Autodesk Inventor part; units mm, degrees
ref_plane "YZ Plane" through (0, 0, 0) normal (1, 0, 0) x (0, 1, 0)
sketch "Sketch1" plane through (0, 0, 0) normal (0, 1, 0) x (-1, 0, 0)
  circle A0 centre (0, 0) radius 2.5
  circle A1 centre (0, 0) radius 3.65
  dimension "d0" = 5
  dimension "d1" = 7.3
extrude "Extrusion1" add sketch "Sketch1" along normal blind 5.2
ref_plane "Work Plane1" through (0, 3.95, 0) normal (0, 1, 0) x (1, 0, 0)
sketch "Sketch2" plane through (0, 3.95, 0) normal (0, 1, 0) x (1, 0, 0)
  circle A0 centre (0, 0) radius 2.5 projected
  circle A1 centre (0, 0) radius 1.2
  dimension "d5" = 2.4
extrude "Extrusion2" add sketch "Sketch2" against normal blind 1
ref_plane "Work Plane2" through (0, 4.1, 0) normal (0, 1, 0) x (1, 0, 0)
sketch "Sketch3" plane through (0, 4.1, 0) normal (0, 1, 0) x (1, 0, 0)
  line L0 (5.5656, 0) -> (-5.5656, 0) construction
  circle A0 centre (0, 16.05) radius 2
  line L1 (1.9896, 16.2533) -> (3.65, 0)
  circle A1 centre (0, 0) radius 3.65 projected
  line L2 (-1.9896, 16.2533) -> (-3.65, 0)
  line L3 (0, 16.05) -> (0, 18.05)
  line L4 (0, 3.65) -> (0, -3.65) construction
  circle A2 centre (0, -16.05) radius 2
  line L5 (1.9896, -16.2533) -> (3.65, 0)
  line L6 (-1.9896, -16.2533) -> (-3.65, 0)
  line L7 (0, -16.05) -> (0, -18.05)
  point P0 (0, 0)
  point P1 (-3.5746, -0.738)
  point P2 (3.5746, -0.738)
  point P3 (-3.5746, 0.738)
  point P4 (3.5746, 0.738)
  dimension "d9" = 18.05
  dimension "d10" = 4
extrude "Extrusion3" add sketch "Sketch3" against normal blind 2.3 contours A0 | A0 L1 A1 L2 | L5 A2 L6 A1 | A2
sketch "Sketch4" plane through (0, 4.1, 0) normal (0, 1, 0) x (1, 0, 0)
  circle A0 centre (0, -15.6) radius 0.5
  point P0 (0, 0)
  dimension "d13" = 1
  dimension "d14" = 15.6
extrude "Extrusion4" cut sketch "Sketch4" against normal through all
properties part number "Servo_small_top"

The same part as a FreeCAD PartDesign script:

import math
import FreeCAD as App
import Part
import Sketcher

doc = App.newDocument("Part")
params = doc.addObject("Spreadsheet::Sheet", "Params")
for row, (alias, value) in enumerate([
    ("sketch1_diameter", "5 mm"),
    ("sketch1_diameter2", "7.3 mm"),
    ("pad1_length", "5.2 mm"),
    ("sketch2_diameter", "2.4 mm"),
    ("sketch2_diameter2", "5 mm"),
    ("pad2_length", "1 mm"),
    ("sketch3_radius", "2 mm"),
    ("sketch3_radius2", "3.65 mm"),
    ("pad3_length", "2.3 mm"),
    ("sketch4_diameter", "1 mm"),
], start=1):
    params.set(f"A{row}", alias)
    params.set(f"B{row}", "=" + value)
    params.setAlias(f"B{row}", alias)

body = doc.addObject("PartDesign::Body", "Body")

sketch1 = doc.addObject("Sketcher::SketchObject", "Sketch")
body.addObject(sketch1)
sketch1.AttachmentSupport = (doc.XZ_Plane, [""])
sketch1.MapMode = "FlatFace"
sketch1.addGeometry([
    Part.Circle(App.Vector(0, 0, 0), App.Vector(0, 0, 1), 3.6),
    Part.Circle(App.Vector(0, 0, 0), App.Vector(0, 0, 1), 2.5),
], False)
sketch1.addConstraint([
    Sketcher.Constraint("Coincident", 0, 3, -1, 1),
    Sketcher.Constraint("Coincident", 1, 3, -1, 1),
    Sketcher.Constraint("Diameter", 1, 5.0),
    Sketcher.Constraint("Diameter", 0, 7.3),
])
sketch1.setExpression("Constraints[2]", "Params.sketch1_diameter")
sketch1.setExpression("Constraints[3]", "Params.sketch1_diameter2")
pad1 = doc.addObject("PartDesign::Pad", "Pad")
body.addObject(pad1)
pad1.Profile = sketch1
pad1.setExpression("Length", "Params.pad1_length")
pad1.Reversed = True

sketch2 = doc.addObject("Sketcher::SketchObject", "Sketch001")
body.addObject(sketch2)
sketch2.AttachmentSupport = (doc.XZ_Plane, [""])
sketch2.MapMode = "FlatFace"
sketch2.AttachmentOffset = App.Placement(App.Vector(0, 0, -3.95), App.Rotation())
sketch2.addGeometry([
    Part.Circle(App.Vector(0, 0, 0), App.Vector(0, 0, 1), 2.5),
    Part.Circle(App.Vector(0, 0, 0), App.Vector(0, 0, 1), 1.2),
], False)
sketch2.addConstraint([
    Sketcher.Constraint("Coincident", 0, 3, -1, 1),
    Sketcher.Constraint("Coincident", 1, 3, -1, 1),
    Sketcher.Constraint("Diameter", 1, 2.4),
    Sketcher.Constraint("Diameter", 0, 5.0),
])
sketch2.setExpression("Constraints[2]", "Params.sketch2_diameter")
sketch2.setExpression("Constraints[3]", "Params.sketch2_diameter2")
pad2 = doc.addObject("PartDesign::Pad", "Pad001")
body.addObject(pad2)
pad2.Profile = sketch2
pad2.setExpression("Length", "Params.pad2_length")

sketch3 = doc.addObject("Sketcher::SketchObject", "Sketch002")
body.addObject(sketch3)
sketch3.AttachmentSupport = (doc.XZ_Plane, [""])
sketch3.MapMode = "FlatFace"
sketch3.AttachmentOffset = App.Placement(App.Vector(0, 0, -4.1), App.Rotation())
sketch3.addGeometry([
    Part.LineSegment(App.Vector(-2, -16.3, 0), App.Vector(-3.6, -0.7, 0)),
    Part.ArcOfCircle(Part.Circle(App.Vector(0, 0, 0), App.Vector(0, 0, 1), 3.6), math.radians(-168), math.radians(-12)),
    Part.LineSegment(App.Vector(3.6, -0.7, 0), App.Vector(2, -16.3, 0)),
    Part.ArcOfCircle(Part.Circle(App.Vector(0, -16.1, 0), App.Vector(0, 0, 1), 2), math.radians(-174), math.radians(-6)),
    Part.LineSegment(App.Vector(2, 16.3, 0), App.Vector(3.6, 0.7, 0)),
    Part.ArcOfCircle(Part.Circle(App.Vector(0, 0, 0), App.Vector(0, 0, 1), 3.6), math.radians(12), math.radians(168)),
    Part.LineSegment(App.Vector(-3.6, 0.7, 0), App.Vector(-2, 16.3, 0)),
    Part.ArcOfCircle(Part.Circle(App.Vector(0, 16.1, 0), App.Vector(0, 0, 1), 2), math.radians(6), math.radians(174)),
], False)
sketch3.addConstraint([
    Sketcher.Constraint("Coincident", 0, 2, 1, 1),
    Sketcher.Constraint("Coincident", 1, 2, 2, 1),
    Sketcher.Constraint("Tangent", 2, 2, 3, 2),
    Sketcher.Constraint("Tangent", 3, 1, 0, 1),
    Sketcher.Constraint("Coincident", 4, 2, 5, 1),
    Sketcher.Constraint("Coincident", 5, 2, 6, 1),
    Sketcher.Constraint("Tangent", 6, 2, 7, 2),
    Sketcher.Constraint("Tangent", 7, 1, 4, 1),
    Sketcher.Constraint("Coincident", 1, 3, -1, 1),
    Sketcher.Constraint("Coincident", 5, 3, -1, 1),
    Sketcher.Constraint("Equal", 1, 5),
    Sketcher.Constraint("Equal", 3, 7),
    Sketcher.Constraint("Symmetric", 3, 3, 7, 3, -1, 1),
    Sketcher.Constraint("Symmetric", 2, 2, 3, 1, -2),
    Sketcher.Constraint("Parallel", 0, 4),
    Sketcher.Constraint("Parallel", 2, 6),
    Sketcher.Constraint("Radius", 3, 2.0),
    Sketcher.Constraint("Radius", 1, 3.65),
    Sketcher.Constraint("DistanceY", 3, 3, 7, 3, 32.1),
    Sketcher.Constraint("Distance", 0, 15.596),
])
sketch3.setExpression("Constraints[16]", "Params.sketch3_radius")
sketch3.setExpression("Constraints[17]", "Params.sketch3_radius2")
pad3 = doc.addObject("PartDesign::Pad", "Pad002")
body.addObject(pad3)
pad3.Profile = sketch3
pad3.setExpression("Length", "Params.pad3_length")

sketch4 = doc.addObject("Sketcher::SketchObject", "Sketch003")
body.addObject(sketch4)
sketch4.AttachmentSupport = (doc.XZ_Plane, [""])
sketch4.MapMode = "FlatFace"
sketch4.AttachmentOffset = App.Placement(App.Vector(0, 0, -4.1), App.Rotation())
sketch4.addGeometry(Part.Circle(App.Vector(0, 15.6, 0), App.Vector(0, 0, 1), 0.5), False)
sketch4.addConstraint([
    Sketcher.Constraint("PointOnObject", 0, 3, -2),
    Sketcher.Constraint("Diameter", 0, 1.0),
    Sketcher.Constraint("DistanceY", -1, 1, 0, 3, 15.6),
])
sketch4.setExpression("Constraints[1]", "Params.sketch4_diameter")
pocket1 = doc.addObject("PartDesign::Pocket", "Pocket")
body.addObject(pocket1)
pocket1.Profile = sketch4
pocket1.Type = "ThroughAll"
pocket1.Reversed = True

doc.recompute()
